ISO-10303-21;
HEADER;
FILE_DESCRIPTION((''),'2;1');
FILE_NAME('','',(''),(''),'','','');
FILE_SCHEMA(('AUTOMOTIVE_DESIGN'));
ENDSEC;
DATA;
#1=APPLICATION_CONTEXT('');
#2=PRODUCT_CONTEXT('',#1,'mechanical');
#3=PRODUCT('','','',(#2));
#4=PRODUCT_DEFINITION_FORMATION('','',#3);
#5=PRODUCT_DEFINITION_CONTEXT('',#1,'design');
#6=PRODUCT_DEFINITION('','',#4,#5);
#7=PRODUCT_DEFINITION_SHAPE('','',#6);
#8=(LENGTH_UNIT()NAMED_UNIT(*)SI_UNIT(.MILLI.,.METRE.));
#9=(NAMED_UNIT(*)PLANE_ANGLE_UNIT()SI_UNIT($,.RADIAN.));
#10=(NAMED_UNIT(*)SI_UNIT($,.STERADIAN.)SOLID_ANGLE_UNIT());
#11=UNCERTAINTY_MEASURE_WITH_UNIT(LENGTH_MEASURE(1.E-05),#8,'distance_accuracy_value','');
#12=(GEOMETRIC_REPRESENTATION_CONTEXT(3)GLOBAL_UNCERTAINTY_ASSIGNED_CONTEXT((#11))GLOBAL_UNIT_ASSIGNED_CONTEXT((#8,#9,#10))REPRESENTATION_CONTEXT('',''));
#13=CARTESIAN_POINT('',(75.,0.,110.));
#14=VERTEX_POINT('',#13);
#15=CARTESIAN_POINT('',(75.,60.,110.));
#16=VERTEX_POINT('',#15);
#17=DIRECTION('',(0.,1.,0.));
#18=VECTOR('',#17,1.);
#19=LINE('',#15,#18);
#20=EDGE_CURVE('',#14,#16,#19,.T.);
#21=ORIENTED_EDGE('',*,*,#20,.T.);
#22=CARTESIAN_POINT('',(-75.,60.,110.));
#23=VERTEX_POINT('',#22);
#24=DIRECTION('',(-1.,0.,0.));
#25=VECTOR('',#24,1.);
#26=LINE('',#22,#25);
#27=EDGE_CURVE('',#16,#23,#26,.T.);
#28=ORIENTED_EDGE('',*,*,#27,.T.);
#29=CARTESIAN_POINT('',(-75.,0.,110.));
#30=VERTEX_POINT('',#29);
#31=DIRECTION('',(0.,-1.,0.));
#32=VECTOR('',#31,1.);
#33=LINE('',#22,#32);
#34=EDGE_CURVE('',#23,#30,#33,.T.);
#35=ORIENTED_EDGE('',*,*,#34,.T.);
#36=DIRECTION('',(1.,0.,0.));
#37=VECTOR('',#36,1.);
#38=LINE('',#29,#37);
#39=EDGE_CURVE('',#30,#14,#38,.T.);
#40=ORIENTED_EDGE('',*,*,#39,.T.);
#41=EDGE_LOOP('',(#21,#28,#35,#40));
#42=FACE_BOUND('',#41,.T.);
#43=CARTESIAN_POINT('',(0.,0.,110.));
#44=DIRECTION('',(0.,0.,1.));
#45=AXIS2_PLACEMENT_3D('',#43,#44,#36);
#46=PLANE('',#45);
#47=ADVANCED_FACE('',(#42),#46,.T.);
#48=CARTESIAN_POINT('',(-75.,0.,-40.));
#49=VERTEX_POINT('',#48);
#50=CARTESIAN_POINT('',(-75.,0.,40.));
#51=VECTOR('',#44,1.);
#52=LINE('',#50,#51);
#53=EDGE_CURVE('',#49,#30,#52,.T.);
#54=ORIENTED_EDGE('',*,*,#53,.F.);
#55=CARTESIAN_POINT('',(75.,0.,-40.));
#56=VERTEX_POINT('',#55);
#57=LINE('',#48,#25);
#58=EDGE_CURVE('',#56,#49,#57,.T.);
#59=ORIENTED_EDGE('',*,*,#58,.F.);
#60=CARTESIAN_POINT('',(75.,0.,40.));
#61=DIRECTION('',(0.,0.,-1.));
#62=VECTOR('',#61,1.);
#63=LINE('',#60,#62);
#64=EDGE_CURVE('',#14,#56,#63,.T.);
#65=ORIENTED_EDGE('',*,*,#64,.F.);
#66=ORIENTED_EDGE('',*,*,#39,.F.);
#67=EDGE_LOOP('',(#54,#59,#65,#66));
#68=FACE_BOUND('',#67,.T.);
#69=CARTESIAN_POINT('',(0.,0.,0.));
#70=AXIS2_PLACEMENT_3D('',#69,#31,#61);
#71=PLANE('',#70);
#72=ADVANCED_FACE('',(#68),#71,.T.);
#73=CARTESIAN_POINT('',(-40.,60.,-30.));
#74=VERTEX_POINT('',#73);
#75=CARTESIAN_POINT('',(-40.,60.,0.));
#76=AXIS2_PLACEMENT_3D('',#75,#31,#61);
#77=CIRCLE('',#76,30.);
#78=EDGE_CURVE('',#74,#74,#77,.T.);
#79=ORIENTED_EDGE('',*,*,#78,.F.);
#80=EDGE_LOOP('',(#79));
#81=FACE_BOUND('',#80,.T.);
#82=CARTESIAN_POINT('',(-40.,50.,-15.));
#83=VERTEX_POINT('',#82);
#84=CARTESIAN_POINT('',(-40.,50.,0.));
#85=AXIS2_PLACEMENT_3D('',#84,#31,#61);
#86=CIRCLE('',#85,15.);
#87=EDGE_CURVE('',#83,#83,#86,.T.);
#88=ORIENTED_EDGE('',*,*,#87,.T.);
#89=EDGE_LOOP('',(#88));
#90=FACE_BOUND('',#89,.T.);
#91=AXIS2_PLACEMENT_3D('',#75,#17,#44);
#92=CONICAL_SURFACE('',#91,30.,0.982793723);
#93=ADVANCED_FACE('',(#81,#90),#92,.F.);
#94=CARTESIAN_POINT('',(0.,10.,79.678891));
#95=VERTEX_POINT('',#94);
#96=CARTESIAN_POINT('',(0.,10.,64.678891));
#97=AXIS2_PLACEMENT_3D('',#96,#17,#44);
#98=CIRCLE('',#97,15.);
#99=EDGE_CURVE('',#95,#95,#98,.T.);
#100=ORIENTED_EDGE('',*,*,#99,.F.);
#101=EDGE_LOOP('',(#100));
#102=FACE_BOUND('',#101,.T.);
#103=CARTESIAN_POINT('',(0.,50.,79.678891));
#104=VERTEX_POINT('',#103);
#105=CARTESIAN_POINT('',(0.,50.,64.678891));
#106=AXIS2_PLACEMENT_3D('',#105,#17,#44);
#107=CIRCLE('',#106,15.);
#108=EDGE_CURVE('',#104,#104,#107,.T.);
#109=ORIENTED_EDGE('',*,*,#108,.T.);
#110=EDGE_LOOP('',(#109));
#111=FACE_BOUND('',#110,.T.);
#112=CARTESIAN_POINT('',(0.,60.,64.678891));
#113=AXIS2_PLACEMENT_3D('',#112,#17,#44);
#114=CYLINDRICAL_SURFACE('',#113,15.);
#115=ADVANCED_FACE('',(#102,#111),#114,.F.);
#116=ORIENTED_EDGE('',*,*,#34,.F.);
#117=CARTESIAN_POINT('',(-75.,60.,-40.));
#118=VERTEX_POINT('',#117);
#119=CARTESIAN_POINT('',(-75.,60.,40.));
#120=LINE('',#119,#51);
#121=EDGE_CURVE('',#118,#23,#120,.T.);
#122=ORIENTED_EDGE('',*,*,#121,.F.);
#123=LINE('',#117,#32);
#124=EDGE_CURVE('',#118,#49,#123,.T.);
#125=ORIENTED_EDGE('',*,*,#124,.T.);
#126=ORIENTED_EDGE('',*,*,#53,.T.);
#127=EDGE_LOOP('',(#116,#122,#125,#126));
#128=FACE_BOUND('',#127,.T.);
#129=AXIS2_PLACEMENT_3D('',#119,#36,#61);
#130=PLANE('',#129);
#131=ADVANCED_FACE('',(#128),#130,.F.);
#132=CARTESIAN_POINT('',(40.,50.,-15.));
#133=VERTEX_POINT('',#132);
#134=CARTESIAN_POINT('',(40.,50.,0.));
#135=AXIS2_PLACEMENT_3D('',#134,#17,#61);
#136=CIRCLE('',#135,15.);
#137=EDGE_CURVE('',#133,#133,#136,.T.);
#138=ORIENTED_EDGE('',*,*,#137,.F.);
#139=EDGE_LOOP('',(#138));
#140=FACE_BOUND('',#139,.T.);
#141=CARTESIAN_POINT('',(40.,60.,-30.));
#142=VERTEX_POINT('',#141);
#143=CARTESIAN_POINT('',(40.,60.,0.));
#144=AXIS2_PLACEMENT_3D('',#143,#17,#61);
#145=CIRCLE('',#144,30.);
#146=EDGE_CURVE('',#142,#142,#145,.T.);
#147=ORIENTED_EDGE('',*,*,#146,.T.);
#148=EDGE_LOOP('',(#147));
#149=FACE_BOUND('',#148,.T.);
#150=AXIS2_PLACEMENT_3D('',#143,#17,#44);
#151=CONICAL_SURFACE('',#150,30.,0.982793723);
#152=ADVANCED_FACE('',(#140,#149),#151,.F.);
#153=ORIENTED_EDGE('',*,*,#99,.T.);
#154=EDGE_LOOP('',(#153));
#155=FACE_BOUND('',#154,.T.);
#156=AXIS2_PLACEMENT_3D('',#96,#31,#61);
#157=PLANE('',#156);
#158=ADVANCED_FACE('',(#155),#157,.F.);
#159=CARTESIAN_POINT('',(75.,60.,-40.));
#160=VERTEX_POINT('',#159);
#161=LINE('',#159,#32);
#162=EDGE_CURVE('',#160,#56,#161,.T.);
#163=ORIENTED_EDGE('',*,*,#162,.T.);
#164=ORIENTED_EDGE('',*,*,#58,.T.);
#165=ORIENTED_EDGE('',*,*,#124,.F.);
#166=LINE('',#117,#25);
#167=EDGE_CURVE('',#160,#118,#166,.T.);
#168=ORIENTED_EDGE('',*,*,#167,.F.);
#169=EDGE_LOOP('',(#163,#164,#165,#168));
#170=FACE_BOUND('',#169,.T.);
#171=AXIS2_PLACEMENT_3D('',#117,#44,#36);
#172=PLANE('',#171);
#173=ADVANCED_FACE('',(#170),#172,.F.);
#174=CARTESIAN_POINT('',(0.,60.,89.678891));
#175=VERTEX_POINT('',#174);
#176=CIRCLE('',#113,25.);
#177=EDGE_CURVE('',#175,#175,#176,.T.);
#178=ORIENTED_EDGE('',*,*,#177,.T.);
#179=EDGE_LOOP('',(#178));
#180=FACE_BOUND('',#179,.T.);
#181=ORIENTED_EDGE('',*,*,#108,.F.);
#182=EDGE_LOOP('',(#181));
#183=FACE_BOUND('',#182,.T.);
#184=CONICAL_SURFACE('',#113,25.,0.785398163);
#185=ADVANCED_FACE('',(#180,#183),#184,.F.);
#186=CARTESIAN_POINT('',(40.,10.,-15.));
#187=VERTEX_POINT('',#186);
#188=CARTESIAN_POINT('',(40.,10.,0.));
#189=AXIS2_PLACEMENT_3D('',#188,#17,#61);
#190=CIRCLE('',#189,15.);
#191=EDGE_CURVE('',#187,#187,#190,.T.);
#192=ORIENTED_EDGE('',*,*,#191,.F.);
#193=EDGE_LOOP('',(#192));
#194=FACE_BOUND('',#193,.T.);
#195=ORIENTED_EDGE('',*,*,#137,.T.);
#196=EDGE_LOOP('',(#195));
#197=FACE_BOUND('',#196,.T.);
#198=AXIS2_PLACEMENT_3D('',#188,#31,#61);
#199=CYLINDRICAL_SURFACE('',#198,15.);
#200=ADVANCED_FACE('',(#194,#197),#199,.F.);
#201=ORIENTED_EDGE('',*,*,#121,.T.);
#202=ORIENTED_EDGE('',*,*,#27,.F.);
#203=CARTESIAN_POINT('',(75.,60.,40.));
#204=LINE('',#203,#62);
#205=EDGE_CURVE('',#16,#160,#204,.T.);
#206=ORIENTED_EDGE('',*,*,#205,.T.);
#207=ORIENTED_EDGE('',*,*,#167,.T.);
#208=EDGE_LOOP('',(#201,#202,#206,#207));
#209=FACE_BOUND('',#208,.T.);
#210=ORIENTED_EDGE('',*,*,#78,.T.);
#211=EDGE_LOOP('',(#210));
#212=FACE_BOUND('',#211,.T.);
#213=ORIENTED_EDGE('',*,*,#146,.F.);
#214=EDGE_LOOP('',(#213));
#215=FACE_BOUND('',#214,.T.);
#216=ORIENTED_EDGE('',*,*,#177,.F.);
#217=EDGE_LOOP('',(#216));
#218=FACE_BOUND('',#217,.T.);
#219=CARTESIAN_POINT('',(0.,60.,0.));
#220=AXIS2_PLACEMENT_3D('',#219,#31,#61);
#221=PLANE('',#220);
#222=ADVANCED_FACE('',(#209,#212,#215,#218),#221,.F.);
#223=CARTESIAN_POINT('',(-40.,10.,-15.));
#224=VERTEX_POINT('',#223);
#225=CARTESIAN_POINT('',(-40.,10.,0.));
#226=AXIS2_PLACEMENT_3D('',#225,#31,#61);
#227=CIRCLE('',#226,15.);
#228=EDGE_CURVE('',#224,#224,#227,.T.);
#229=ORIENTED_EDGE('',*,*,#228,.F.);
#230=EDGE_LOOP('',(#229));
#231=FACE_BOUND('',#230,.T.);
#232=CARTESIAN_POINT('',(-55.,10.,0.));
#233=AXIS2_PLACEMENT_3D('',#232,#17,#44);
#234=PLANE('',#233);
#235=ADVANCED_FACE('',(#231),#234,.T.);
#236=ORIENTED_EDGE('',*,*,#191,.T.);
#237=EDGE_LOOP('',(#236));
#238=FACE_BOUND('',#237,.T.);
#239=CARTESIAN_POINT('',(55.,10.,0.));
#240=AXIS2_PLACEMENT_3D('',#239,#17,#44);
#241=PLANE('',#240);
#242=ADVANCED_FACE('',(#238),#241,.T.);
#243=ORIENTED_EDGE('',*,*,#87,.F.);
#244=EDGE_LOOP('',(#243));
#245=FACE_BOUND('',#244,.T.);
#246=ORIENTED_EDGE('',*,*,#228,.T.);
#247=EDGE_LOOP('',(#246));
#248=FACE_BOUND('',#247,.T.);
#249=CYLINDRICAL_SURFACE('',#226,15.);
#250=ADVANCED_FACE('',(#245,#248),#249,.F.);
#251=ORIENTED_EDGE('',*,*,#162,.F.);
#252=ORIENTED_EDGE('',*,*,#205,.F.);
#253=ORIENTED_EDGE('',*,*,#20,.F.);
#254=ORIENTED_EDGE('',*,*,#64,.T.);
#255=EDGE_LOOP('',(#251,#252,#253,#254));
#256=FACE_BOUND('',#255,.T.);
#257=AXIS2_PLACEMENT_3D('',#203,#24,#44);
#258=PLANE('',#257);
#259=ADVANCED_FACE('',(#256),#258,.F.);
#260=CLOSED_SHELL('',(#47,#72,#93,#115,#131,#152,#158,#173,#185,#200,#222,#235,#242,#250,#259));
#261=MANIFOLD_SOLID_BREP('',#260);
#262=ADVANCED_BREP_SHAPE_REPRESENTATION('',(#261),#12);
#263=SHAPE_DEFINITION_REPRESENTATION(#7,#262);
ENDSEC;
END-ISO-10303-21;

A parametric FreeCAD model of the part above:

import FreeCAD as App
import Part
import Sketcher
from FreeCAD import Vector

doc = App.newDocument("Part")
body = doc.addObject("PartDesign::Body", "Body")

sketch1 = body.newObject("Sketcher::SketchObject", "Sketch")
sketch1.AttachmentSupport = (doc.getObject("XZ_Plane"), [""])
sketch1.MapMode = "FlatFace"
sketch1.addGeometry([
    Part.LineSegment(Vector(-75, -40, 0), Vector(-75, 40, 0)),
    Part.LineSegment(Vector(-75, 40, 0), Vector(75, 40, 0)),
    Part.LineSegment(Vector(75, 40, 0), Vector(75, -40, 0)),
    Part.LineSegment(Vector(75, -40, 0), Vector(-75, -40, 0)),
], False)
sketch1.addConstraint([
    Sketcher.Constraint("Coincident", 0, 2, 1, 1),
    Sketcher.Constraint("Coincident", 1, 2, 2, 1),
    Sketcher.Constraint("Coincident", 2, 2, 3, 1),
    Sketcher.Constraint("Coincident", 3, 2, 0, 1),
    Sketcher.Constraint("Vertical", 0),
    Sketcher.Constraint("Horizontal", 1),
    Sketcher.Constraint("Vertical", 2),
    Sketcher.Constraint("Horizontal", 3),
    Sketcher.Constraint("Symmetric", 0, 2, 2, 2, -1, 1),
    Sketcher.Constraint("DistanceX", 1, 1, 1, 2, 150.0),
    Sketcher.Constraint("DistanceY", 0, 1, 0, 2, 80.0),
])
pad1 = body.newObject("PartDesign::Pad", "Pad")
pad1.Profile = sketch1
pad1.Length = 60
pad1.Reversed = True

sketch2 = body.newObject("Sketcher::SketchObject", "Sketch001")
sketch2.AttachmentSupport = (doc.getObject("XY_Plane"), [""])
sketch2.MapMode = "FlatFace"
sketch2.addGeometry([
    Part.LineSegment(Vector(-40, 60, 0), Vector(-70, 60, 0)),
    Part.LineSegment(Vector(-70, 60, 0), Vector(-55, 50, 0)),
    Part.LineSegment(Vector(-55, 50, 0), Vector(-55, 10, 0)),
    Part.LineSegment(Vector(-55, 10, 0), Vector(-40, 10, 0)),
    Part.LineSegment(Vector(-40, 10, 0), Vector(-40, 60, 0)),
], False)
sketch2.addGeometry(Part.LineSegment(Vector(-40, 10, 0), Vector(-40, 60, 0)), True)
sketch2.addConstraint([
    Sketcher.Constraint("Coincident", 0, 2, 1, 1),
    Sketcher.Constraint("Coincident", 1, 2, 2, 1),
    Sketcher.Constraint("Coincident", 2, 2, 3, 1),
    Sketcher.Constraint("Coincident", 3, 2, 4, 1),
    Sketcher.Constraint("Coincident", 4, 2, 0, 1),
    Sketcher.Constraint("Horizontal", 0),
    Sketcher.Constraint("Vertical", 2),
    Sketcher.Constraint("Horizontal", 3),
    Sketcher.Constraint("Vertical", 4),
    Sketcher.Constraint("Vertical", 5),
    Sketcher.Constraint("Coincident", 5, 1, 3, 2),
    Sketcher.Constraint("Horizontal", 0, 2, 5, 2),
    Sketcher.Constraint("DistanceX", 0, 2, 0, 1, 30.0),
    Sketcher.Constraint("DistanceX", 3, 1, 3, 2, 15.0),
    Sketcher.Constraint("DistanceY", 2, 2, 2, 1, 40.0),
    Sketcher.Constraint("DistanceY", 4, 1, 4, 2, 50.0),
    Sketcher.Constraint("DistanceX", 0, 2, -1, 1, 70.0),
    Sketcher.Constraint("DistanceY", -1, 1, 0, 2, 60.0),
])
groove = body.newObject("PartDesign::Groove", "Groove")
groove.Profile = sketch2
groove.ReferenceAxis = (sketch2, ["Axis0"])
groove.Angle = 360
doc.recompute()

mirrored = body.newObject("PartDesign::Mirrored", "Mirrored")
mirrored.Originals = [groove]
mirrored.MirrorPlane = (doc.getObject("YZ_Plane"), [""])
body.Tip = mirrored

sketch3 = body.newObject("Sketcher::SketchObject", "Sketch002")
sketch3.AttachmentSupport = (doc.getObject("XY_Plane"), [""])
sketch3.MapMode = "FlatFace"
sketch3.AttachmentOffset = App.Placement(Vector(0, 0, 40), App.Rotation())
sketch3.addGeometry([
    Part.LineSegment(Vector(-75, 60, 0), Vector(-75, 0, 0)),
    Part.LineSegment(Vector(-75, 0, 0), Vector(75, 0, 0)),
    Part.LineSegment(Vector(75, 0, 0), Vector(75, 60, 0)),
    Part.LineSegment(Vector(75, 60, 0), Vector(-75, 60, 0)),
], False)
sketch3.addConstraint([
    Sketcher.Constraint("Coincident", 0, 2, 1, 1),
    Sketcher.Constraint("Coincident", 1, 2, 2, 1),
    Sketcher.Constraint("Coincident", 2, 2, 3, 1),
    Sketcher.Constraint("Coincident", 3, 2, 0, 1),
    Sketcher.Constraint("Vertical", 0),
    Sketcher.Constraint("Horizontal", 1),
    Sketcher.Constraint("Vertical", 2),
    Sketcher.Constraint("Horizontal", 3),
    Sketcher.Constraint("Symmetric", 0, 2, 1, 2, -1, 1),
    Sketcher.Constraint("DistanceX", 1, 1, 1, 2, 150.0),
    Sketcher.Constraint("DistanceY", 0, 2, 0, 1, 60.0),
])
pad2 = body.newObject("PartDesign::Pad", "Pad001")
pad2.Profile = sketch3
pad2.Length = 70

sketch4 = body.newObject("Sketcher::SketchObject", "Sketch003")
sketch4.AttachmentSupport = (doc.getObject("YZ_Plane"), [""])
sketch4.MapMode = "FlatFace"
sketch4.addGeometry([
    Part.LineSegment(Vector(10, 65, 0), Vector(60, 65, 0)),
    Part.LineSegment(Vector(60, 65, 0), Vector(60, 90, 0)),
    Part.LineSegment(Vector(60, 90, 0), Vector(50, 80, 0)),
    Part.LineSegment(Vector(50, 80, 0), Vector(10, 80, 0)),
    Part.LineSegment(Vector(10, 80, 0), Vector(10, 65, 0)),
], False)
sketch4.addGeometry(Part.LineSegment(Vector(60, 65, 0), Vector(10, 65, 0)), True)
sketch4.addConstraint([
    Sketcher.Constraint("Coincident", 0, 2, 1, 1),
    Sketcher.Constraint("Coincident", 1, 2, 2, 1),
    Sketcher.Constraint("Coincident", 2, 2, 3, 1),
    Sketcher.Constraint("Coincident", 3, 2, 4, 1),
    Sketcher.Constraint("Coincident", 4, 2, 0, 1),
    Sketcher.Constraint("Horizontal", 0),
    Sketcher.Constraint("Vertical", 1),
    Sketcher.Constraint("Horizontal", 3),
    Sketcher.Constraint("Vertical", 4),
    Sketcher.Constraint("Horizontal", 5),
    Sketcher.Constraint("Coincident", 5, 1, 0, 2),
    Sketcher.Constraint("Vertical", 3, 2, 5, 2),
    Sketcher.Constraint("DistanceX", 0, 1, 0, 2, 50.0),
    Sketcher.Constraint("DistanceX", 3, 2, 3, 1, 40.0),
    Sketcher.Constraint("DistanceY", 1, 1, 1, 2, 25.0),
    Sketcher.Constraint("DistanceY", 4, 2, 4, 1, 15.0),
    Sketcher.Constraint("DistanceX", -1, 1, 0, 2, 60.0),
    Sketcher.Constraint("DistanceY", -1, 1, 0, 2, 64.678891),
])
groove2 = body.newObject("PartDesign::Groove", "Groove001")
groove2.Profile = sketch4
groove2.ReferenceAxis = (sketch4, ["Axis0"])
groove2.Angle = 360

doc.recompute()
